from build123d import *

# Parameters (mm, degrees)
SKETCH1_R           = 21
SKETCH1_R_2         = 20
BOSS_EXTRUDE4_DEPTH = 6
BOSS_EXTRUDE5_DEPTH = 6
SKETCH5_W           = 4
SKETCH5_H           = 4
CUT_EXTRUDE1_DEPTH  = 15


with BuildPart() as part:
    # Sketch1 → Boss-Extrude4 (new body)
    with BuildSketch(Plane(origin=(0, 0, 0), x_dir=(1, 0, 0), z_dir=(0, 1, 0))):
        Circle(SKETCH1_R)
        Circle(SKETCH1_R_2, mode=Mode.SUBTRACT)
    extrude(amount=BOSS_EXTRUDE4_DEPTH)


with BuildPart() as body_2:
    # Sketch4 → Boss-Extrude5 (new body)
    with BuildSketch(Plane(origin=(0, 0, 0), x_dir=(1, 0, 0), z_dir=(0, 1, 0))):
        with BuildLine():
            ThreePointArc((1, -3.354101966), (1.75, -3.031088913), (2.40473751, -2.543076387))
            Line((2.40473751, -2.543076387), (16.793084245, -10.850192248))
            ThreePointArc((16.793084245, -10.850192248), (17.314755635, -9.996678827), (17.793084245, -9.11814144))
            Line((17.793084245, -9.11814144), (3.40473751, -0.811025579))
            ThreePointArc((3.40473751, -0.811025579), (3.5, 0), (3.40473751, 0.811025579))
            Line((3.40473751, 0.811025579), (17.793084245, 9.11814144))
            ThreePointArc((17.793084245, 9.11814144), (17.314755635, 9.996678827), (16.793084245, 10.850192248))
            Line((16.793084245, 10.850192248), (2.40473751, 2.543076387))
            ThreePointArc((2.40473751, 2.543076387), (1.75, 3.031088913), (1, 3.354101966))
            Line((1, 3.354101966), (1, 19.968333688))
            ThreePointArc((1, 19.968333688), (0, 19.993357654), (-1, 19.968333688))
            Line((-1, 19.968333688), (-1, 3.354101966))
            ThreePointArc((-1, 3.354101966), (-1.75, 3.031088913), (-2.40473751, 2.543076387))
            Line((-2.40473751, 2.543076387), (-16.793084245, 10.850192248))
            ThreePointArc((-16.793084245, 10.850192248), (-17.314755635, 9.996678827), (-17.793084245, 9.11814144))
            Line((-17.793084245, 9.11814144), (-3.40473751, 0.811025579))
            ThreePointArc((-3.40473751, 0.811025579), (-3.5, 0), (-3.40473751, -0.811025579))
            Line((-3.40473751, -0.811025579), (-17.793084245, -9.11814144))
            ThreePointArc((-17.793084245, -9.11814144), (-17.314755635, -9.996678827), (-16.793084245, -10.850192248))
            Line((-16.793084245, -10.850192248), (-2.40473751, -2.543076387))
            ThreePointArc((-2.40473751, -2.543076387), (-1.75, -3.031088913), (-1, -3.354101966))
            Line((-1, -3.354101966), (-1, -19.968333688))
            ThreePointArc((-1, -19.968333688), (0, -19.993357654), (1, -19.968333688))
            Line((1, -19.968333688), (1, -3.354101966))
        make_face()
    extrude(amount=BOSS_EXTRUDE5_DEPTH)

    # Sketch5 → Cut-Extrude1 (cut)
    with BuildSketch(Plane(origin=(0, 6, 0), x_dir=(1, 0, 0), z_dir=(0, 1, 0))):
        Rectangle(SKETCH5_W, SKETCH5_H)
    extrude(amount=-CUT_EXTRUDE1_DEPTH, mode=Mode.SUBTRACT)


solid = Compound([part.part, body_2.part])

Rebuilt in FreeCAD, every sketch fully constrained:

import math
import FreeCAD as App
import Part
import Sketcher
from FreeCAD import Vector
Q = App.Units.Quantity

doc = App.newDocument("Part")
params = doc.addObject("Spreadsheet::Sheet", "Params")
for row, (alias, value) in enumerate([
    ("sketch1_diameter", "42 mm"),
    ("sketch1_diameter2", "40 mm"),
    ("pad1_length", "6 mm"),
    ("sketch2_radius", "3.5 mm"),
    ("pad2_length", "6 mm"),
    ("sketch3_width", "4 mm"),
    ("pocket1_length", "15 mm"),
], start=1):
    params.set(f"A{row}", alias)
    params.set(f"B{row}", "=" + value)
    params.setAlias(f"B{row}", alias)

body = doc.addObject("PartDesign::Body", "Body")

sketch1 = body.newObject("Sketcher::SketchObject", "Sketch")
sketch1.AttachmentSupport = (doc.getObject("XZ_Plane"), [""])
sketch1.MapMode = "FlatFace"
sketch1.addGeometry([
    Part.Circle(Vector(0, 0, 0), Vector(0, 0, 1), 21),
    Part.Circle(Vector(0, 0, 0), Vector(0, 0, 1), 20),
], False)
sketch1.addConstraint([
    Sketcher.Constraint("Coincident", 0, 3, -1, 1),
    Sketcher.Constraint("Coincident", 1, 3, -1, 1),
    Sketcher.Constraint("Diameter", 0, Q("42 mm")),
    Sketcher.Constraint("Diameter", 1, Q("40 mm")),
])
sketch1.setExpression("Constraints[2]", "Params.sketch1_diameter")
sketch1.setExpression("Constraints[3]", "Params.sketch1_diameter2")
pad1 = body.newObject("PartDesign::Pad", "Pad")
pad1.Profile = sketch1
pad1.setExpression("Length", "Params.pad1_length")
pad1.Reversed = True
body2 = doc.addObject("PartDesign::Body", "Body001")

sketch2 = body2.newObject("Sketcher::SketchObject", "Sketch001")
sketch2.AttachmentSupport = (doc.getObject("XZ_Plane001"), [""])
sketch2.MapMode = "FlatFace"
sketch2.addGeometry([
    Part.ArcOfCircle(Part.Circle(Vector(0, 0, 0), Vector(0, 0, 1), 3.5), math.radians(47), math.radians(73)),
    Part.LineSegment(Vector(2.4, 2.5, 0), Vector(16.8, 10.9, 0)),
    Part.ArcOfCircle(Part.Circle(Vector(0, 0, 0), Vector(0, 0, 1), 20), math.radians(27.13), math.radians(32.87)),
    Part.LineSegment(Vector(17.8, 9.1, 0), Vector(3.4, 0.8, 0)),
    Part.ArcOfCircle(Part.Circle(Vector(0, 0, 0), Vector(0, 0, 1), 3.5), math.radians(-13), math.radians(13)),
    Part.LineSegment(Vector(3.4, -0.8, 0), Vector(17.8, -9.1, 0)),
    Part.ArcOfCircle(Part.Circle(Vector(0, 0, 0), Vector(0, 0, 1), 20), math.radians(-32.87), math.radians(-27.13)),
    Part.LineSegment(Vector(16.8, -10.9, 0), Vector(2.4, -2.5, 0)),
    Part.ArcOfCircle(Part.Circle(Vector(0, 0, 0), Vector(0, 0, 1), 3.5), math.radians(-73), math.radians(-47)),
    Part.LineSegment(Vector(1, -3.4, 0), Vector(1, -20, 0)),
    Part.ArcOfCircle(Part.Circle(Vector(0, 0, 0), Vector(0, 0, 1), 20), math.radians(-92.87), math.radians(-87.13)),
    Part.LineSegment(Vector(-1, -20, 0), Vector(-1, -3.4, 0)),
    Part.ArcOfCircle(Part.Circle(Vector(0, 0, 0), Vector(0, 0, 1), 3.5), math.radians(-133), math.radians(-107)),
    Part.LineSegment(Vector(-2.4, -2.5, 0), Vector(-16.8, -10.9, 0)),
    Part.ArcOfCircle(Part.Circle(Vector(0, 0, 0), Vector(0, 0, 1), 20), math.radians(-152.87), math.radians(-147.13)),
    Part.LineSegment(Vector(-17.8, -9.1, 0), Vector(-3.4, -0.8, 0)),
    Part.ArcOfCircle(Part.Circle(Vector(0, 0, 0), Vector(0, 0, 1), 3.5), math.radians(167), math.radians(193)),
    Part.LineSegment(Vector(-3.4, 0.8, 0), Vector(-17.8, 9.1, 0)),
    Part.ArcOfCircle(Part.Circle(Vector(0, 0, 0), Vector(0, 0, 1), 20), math.radians(147.13), math.radians(152.87)),
    Part.LineSegment(Vector(-16.8, 10.9, 0), Vector(-2.4, 2.5, 0)),
    Part.ArcOfCircle(Part.Circle(Vector(0, 0, 0), Vector(0, 0, 1), 3.5), math.radians(107), math.radians(133)),
    Part.LineSegment(Vector(-1, 3.4, 0), Vector(-1, 20, 0)),
    Part.ArcOfCircle(Part.Circle(Vector(0, 0, 0), Vector(0, 0, 1), 20), math.radians(87.13), math.radians(92.87)),
    Part.LineSegment(Vector(1, 20, 0), Vector(1, 3.4, 0)),
], False)
sketch2.addConstraint([
    Sketcher.Constraint("Coincident", 0, 1, 1, 1),
    Sketcher.Constraint("Coincident", 1, 2, 2, 2),
    Sketcher.Constraint("Coincident", 2, 1, 3, 1),
    Sketcher.Constraint("Coincident", 3, 2, 4, 2),
    Sketcher.Constraint("Coincident", 4, 1, 5, 1),
    Sketcher.Constraint("Coincident", 5, 2, 6, 2),
    Sketcher.Constraint("Coincident", 6, 1, 7, 1),
    Sketcher.Constraint("Coincident", 7, 2, 8, 2),
    Sketcher.Constraint("Coincident", 8, 1, 9, 1),
    Sketcher.Constraint("Coincident", 9, 2, 10, 2),
    Sketcher.Constraint("Coincident", 10, 1, 11, 1),
    Sketcher.Constraint("Coincident", 11, 2, 12, 2),
    Sketcher.Constraint("Coincident", 12, 1, 13, 1),
    Sketcher.Constraint("Coincident", 13, 2, 14, 2),
    Sketcher.Constraint("Coincident", 14, 1, 15, 1),
    Sketcher.Constraint("Coincident", 15, 2, 16, 2),
    Sketcher.Constraint("Coincident", 16, 1, 17, 1),
    Sketcher.Constraint("Coincident", 17, 2, 18, 2),
    Sketcher.Constraint("Coincident", 18, 1, 19, 1),
    Sketcher.Constraint("Coincident", 19, 2, 20, 2),
    Sketcher.Constraint("Coincident", 20, 1, 21, 1),
    Sketcher.Constraint("Coincident", 21, 2, 22, 2),
    Sketcher.Constraint("Coincident", 22, 1, 23, 1),
    Sketcher.Constraint("Coincident", 23, 2, 0, 2),
    Sketcher.Constraint("Vertical", 9),
    Sketcher.Constraint("Vertical", 11),
    Sketcher.Constraint("Vertical", 21),
    Sketcher.Constraint("Vertical", 23),
    Sketcher.Constraint("Coincident", 0, 3, -1, 1),
    Sketcher.Constraint("Coincident", 2, 3, -1, 1),
    Sketcher.Constraint("Coincident", 4, 3, -1, 1),
    Sketcher.Constraint("Coincident", 6, 3, -1, 1),
    Sketcher.Constraint("Coincident", 8, 3, -1, 1),
    Sketcher.Constraint("Coincident", 10, 3, -1, 1),
    Sketcher.Constraint("Coincident", 12, 3, -1, 1),
    Sketcher.Constraint("Coincident", 14, 3, -1, 1),
    Sketcher.Constraint("Coincident", 16, 3, -1, 1),
    Sketcher.Constraint("Coincident", 18, 3, -1, 1),
    Sketcher.Constraint("Coincident", 20, 3, -1, 1),
    Sketcher.Constraint("Coincident", 22, 3, -1, 1),
    Sketcher.Constraint("Equal", 0, 4),
    Sketcher.Constraint("Equal", 2, 6),
    Sketcher.Constraint("Equal", 4, 8),
    Sketcher.Constraint("Equal", 6, 10),
    Sketcher.Constraint("Equal", 8, 12),
    Sketcher.Constraint("Equal", 10, 14),
    Sketcher.Constraint("Equal", 12, 16),
    Sketcher.Constraint("Equal", 14, 18),
    Sketcher.Constraint("Equal", 16, 20),
    Sketcher.Constraint("Equal", 18, 22),
    Sketcher.Constraint("Parallel", 1, 3),
    Sketcher.Constraint("Parallel", 5, 7),
    Sketcher.Constraint("Parallel", 3, 13),
    Sketcher.Constraint("Parallel", 13, 15),
    Sketcher.Constraint("Parallel", 7, 17),
    Sketcher.Constraint("Parallel", 17, 19),
    Sketcher.Constraint("Horizontal", 9, 2, 10, 1),
    Sketcher.Constraint("Horizontal", 7, 2, 12, 1),
    Sketcher.Constraint("Horizontal", 6, 1, 13, 2),
    Sketcher.Constraint("Horizontal", 5, 2, 14, 1),
    Sketcher.Constraint("Horizontal", 3, 2, 16, 1),
    Sketcher.Constraint("Horizontal", 1, 2, 18, 1),
    Sketcher.Constraint("Horizontal", 21, 2, 22, 1),
    Sketcher.Constraint("Vertical", 3, 2, 4, 1),
    Sketcher.Constraint("Vertical", 1, 2, 6, 1),
    Sketcher.Constraint("Vertical", 11, 2, 20, 1),
    Sketcher.Constraint("Equal", 1, 3),
    Sketcher.Constraint("Radius", 0, Q("3.5 mm")),
    Sketcher.Constraint("Angle", 1, Q("30 deg")),
    Sketcher.Constraint("DistanceX", -1, 1, 8, 1, Q("1 mm")),
    Sketcher.Constraint("DistanceX", 1, 2, 2, 1, Q("1 mm")),
    Sketcher.Constraint("Radius", 2, Q("19.993358 mm")),
])
sketch2.setExpression("Constraints[67]", "Params.sketch2_radius")
pad2 = body2.newObject("PartDesign::Pad", "Pad001")
pad2.Profile = sketch2
pad2.setExpression("Length", "Params.pad2_length")
pad2.Reversed = True

sketch3 = body2.newObject("Sketcher::SketchObject", "Sketch002")
sketch3.AttachmentSupport = (doc.getObject("XZ_Plane001"), [""])
sketch3.MapMode = "FlatFace"
sketch3.AttachmentOffset = App.Placement(Vector(0, 0, -6), App.Rotation())
sketch3.addGeometry([
    Part.LineSegment(Vector(-2, -2, 0), Vector(-2, 2, 0)),
    Part.LineSegment(Vector(-2, 2, 0), Vector(2, 2, 0)),
    Part.LineSegment(Vector(2, 2, 0), Vector(2, -2, 0)),
    Part.LineSegment(Vector(2, -2, 0), Vector(-2, -2, 0)),
], False)
sketch3.addConstraint([
    Sketcher.Constraint("Coincident", 0, 2, 1, 1),
    Sketcher.Constraint("Coincident", 1, 2, 2, 1),
    Sketcher.Constraint("Coincident", 2, 2, 3, 1),
    Sketcher.Constraint("Coincident", 3, 2, 0, 1),
    Sketcher.Constraint("Vertical", 0),
    Sketcher.Constraint("Horizontal", 1),
    Sketcher.Constraint("Vertical", 2),
    Sketcher.Constraint("Horizontal", 3),
    Sketcher.Constraint("Symmetric", 0, 2, 2, 2, -1, 1),
    Sketcher.Constraint("Equal", 3, 0),
    Sketcher.Constraint("DistanceX", 1, 1, 1, 2, Q("4 mm")),
])
sketch3.setExpression("Constraints[10]", "Params.sketch3_width")
pocket1 = body2.newObject("PartDesign::Pocket", "Pocket")
pocket1.Profile = sketch3
pocket1.setExpression("Length", "Params.pocket1_length")
pocket1.Reversed = True

doc.recompute()
